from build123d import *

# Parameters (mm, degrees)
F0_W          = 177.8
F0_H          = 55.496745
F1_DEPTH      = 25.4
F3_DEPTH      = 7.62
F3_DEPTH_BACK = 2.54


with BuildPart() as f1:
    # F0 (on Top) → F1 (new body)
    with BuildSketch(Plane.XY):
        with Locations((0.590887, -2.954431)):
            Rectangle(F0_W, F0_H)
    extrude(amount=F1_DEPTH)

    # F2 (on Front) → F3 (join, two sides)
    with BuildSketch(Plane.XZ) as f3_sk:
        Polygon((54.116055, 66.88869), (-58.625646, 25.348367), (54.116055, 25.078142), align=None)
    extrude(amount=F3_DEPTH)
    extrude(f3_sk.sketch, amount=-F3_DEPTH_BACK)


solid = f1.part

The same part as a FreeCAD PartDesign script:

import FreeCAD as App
import Part
import Sketcher

V = App.Vector
Q = App.Units.Quantity

doc = App.newDocument("Part")
params = doc.addObject("Spreadsheet::Sheet", "Params")
for row, (alias, value) in enumerate([
    ("sketch1_width", "7 in"),
    ("pad1_length", "1 in"),
    ("pad2_length", "0.3 in"),
    ("pad2_length2", "0.1 in"),
], start=1):
    params.set(f"A{row}", alias)
    params.set(f"B{row}", "=" + value)
    params.setAlias(f"B{row}", alias)

body = doc.addObject("PartDesign::Body", "Body")

sketch1 = doc.addObject("Sketcher::SketchObject", "Sketch")
body.addObject(sketch1)
sketch1.AttachmentSupport = (doc.XY_Plane, [""])
sketch1.MapMode = "FlatFace"
sketch1.addGeometry([
    Part.LineSegment(V(-88, 25, 0), V(-88, -31, 0)),
    Part.LineSegment(V(-88, -31, 0), V(89, -31, 0)),
    Part.LineSegment(V(89, -31, 0), V(89, 25, 0)),
    Part.LineSegment(V(89, 25, 0), V(-88, 25, 0)),
], False)
sketch1.addConstraint([
    Sketcher.Constraint("Coincident", 0, 2, 1, 1),
    Sketcher.Constraint("Coincident", 1, 2, 2, 1),
    Sketcher.Constraint("Coincident", 2, 2, 3, 1),
    Sketcher.Constraint("Coincident", 3, 2, 0, 1),
    Sketcher.Constraint("Vertical", 0),
    Sketcher.Constraint("Horizontal", 1),
    Sketcher.Constraint("Vertical", 2),
    Sketcher.Constraint("Horizontal", 3),
    Sketcher.Constraint("DistanceX", 1, 1, 1, 2, Q("7 in")),
    Sketcher.Constraint("DistanceY", 0, 2, 0, 1, Q("55.496745 mm")),
    Sketcher.Constraint("DistanceY", -1, 1, 2, 2, Q("24.793941 mm")),
    Sketcher.Constraint("DistanceX", 0, 2, -1, 1, Q("88.309113 mm")),
])
sketch1.setExpression("Constraints[8]", "Params.sketch1_width")
pad1 = doc.addObject("PartDesign::Pad", "Pad")
body.addObject(pad1)
pad1.Profile = sketch1
pad1.setExpression("Length", "Params.pad1_length")

sketch2 = doc.addObject("Sketcher::SketchObject", "Sketch001")
body.addObject(sketch2)
sketch2.AttachmentSupport = (doc.XZ_Plane, [""])
sketch2.MapMode = "FlatFace"
sketch2.addGeometry([
    Part.LineSegment(V(54, 67, 0), V(-59, 25, 0)),
    Part.LineSegment(V(-59, 25, 0), V(54, 25, 0)),
    Part.LineSegment(V(54, 25, 0), V(54, 67, 0)),
], False)
sketch2.addConstraint([
    Sketcher.Constraint("Coincident", 0, 2, 1, 1),
    Sketcher.Constraint("Coincident", 1, 2, 2, 1),
    Sketcher.Constraint("Coincident", 2, 2, 0, 1),
    Sketcher.Constraint("Vertical", 2),
    Sketcher.Constraint("DistanceX", 0, 2, 1, 2, Q("112.741701 mm")),
    Sketcher.Constraint("Distance", 0, Q("120.151111 mm")),
    Sketcher.Constraint("DistanceY", 2, 1, 2, 2, Q("41.810548 mm")),
    Sketcher.Constraint("DistanceY", -1, 1, 1, 2, Q("25.078142 mm")),
    Sketcher.Constraint("DistanceX", 0, 2, -1, 1, Q("58.625646 mm")),
])
pad2 = doc.addObject("PartDesign::Pad", "Pad001")
body.addObject(pad2)
pad2.Profile = sketch2
pad2.Type = "TwoLengths"
pad2.setExpression("Length", "Params.pad2_length")
pad2.setExpression("Length2", "Params.pad2_length2")

doc.recompute()
